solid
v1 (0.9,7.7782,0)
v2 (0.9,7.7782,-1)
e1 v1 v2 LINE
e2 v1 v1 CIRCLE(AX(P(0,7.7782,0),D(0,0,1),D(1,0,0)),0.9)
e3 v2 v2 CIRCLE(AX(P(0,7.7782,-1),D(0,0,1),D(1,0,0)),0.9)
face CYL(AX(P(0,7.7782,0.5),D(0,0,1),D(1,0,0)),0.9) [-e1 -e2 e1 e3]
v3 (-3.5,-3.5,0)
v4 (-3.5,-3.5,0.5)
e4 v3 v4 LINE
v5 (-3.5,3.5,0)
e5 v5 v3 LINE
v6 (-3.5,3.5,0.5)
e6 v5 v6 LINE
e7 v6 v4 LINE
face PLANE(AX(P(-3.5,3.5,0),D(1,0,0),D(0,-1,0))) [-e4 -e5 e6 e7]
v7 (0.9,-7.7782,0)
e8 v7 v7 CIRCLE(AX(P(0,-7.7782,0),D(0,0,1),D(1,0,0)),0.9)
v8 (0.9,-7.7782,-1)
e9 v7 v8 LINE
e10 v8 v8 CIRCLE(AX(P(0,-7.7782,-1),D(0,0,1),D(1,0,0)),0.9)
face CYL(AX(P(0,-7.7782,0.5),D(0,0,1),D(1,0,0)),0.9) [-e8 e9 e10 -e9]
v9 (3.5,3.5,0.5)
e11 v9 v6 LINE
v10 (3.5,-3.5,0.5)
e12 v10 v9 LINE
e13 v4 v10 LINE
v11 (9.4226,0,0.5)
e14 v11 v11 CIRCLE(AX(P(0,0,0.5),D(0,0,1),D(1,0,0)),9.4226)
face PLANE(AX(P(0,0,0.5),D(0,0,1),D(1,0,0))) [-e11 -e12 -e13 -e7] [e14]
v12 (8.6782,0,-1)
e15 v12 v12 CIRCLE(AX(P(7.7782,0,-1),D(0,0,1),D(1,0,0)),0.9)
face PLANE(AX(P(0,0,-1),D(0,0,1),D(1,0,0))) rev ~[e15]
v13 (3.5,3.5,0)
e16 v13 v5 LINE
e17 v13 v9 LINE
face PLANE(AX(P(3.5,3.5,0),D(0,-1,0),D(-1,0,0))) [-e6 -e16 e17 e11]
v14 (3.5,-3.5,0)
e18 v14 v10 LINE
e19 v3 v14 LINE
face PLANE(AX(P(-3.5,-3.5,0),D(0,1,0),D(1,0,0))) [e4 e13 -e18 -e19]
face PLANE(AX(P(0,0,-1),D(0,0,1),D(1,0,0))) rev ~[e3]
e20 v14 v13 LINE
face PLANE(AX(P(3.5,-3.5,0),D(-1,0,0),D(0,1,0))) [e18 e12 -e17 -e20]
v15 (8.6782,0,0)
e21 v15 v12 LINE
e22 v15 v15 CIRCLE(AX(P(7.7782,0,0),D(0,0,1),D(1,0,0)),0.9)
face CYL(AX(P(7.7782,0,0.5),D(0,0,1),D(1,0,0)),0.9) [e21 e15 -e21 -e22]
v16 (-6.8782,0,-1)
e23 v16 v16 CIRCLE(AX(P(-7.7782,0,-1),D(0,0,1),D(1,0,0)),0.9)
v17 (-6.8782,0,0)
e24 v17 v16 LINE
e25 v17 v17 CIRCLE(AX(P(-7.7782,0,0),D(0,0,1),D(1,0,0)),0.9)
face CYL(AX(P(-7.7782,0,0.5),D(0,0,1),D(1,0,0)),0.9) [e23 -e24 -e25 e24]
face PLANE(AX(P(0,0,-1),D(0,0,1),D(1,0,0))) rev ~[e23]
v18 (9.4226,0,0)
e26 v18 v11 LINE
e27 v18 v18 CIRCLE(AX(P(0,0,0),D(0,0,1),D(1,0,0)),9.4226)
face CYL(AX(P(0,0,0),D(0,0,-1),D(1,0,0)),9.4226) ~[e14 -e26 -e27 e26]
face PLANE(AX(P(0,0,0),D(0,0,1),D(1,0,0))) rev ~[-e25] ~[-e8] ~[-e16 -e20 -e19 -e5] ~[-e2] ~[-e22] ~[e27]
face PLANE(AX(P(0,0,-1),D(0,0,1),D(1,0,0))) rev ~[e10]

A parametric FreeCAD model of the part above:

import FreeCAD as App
import Part
import Sketcher
from FreeCAD import Vector
Q = App.Units.Quantity


def add_polygon(sketch, points):
    """Adds a closed chain of lines whose ends are joined by coincident constraints."""
    first, n = sketch.GeometryCount, len(points)
    for a, b in zip(points, points[1:] + points[:1]):
        sketch.addGeometry(Part.LineSegment(App.Vector(*a, 0), App.Vector(*b, 0)), False)
    for i in range(n):
        sketch.addConstraint(Sketcher.Constraint("Coincident", first + i, 2, first + (i + 1) % n, 1))

doc = App.newDocument("Part")
body = doc.addObject("PartDesign::Body", "Body")

# Sketch on XY plane
sketch1 = body.newObject("Sketcher::SketchObject", "Sketch")
sketch1.AttachmentSupport = (doc.getObject("XY_Plane"), [""])
sketch1.MapMode = "FlatFace"
sketch1.addGeometry(Part.Circle(Vector(0, 0, 0), Vector(0, 0, 1), 9.4226), False)  # 0
sketch1.addGeometry(Part.Circle(Vector(0, -7.7782, 0), Vector(0, 0, 1), 0.9), False)  # 1
sketch1.addGeometry(Part.Circle(Vector(-7.7782, 0, 0), Vector(0, 0, 1), 0.9), False)  # 2
sketch1.addGeometry(Part.Circle(Vector(7.7782, 0, 0), Vector(0, 0, 1), 0.9), False)  # 3
sketch1.addGeometry(Part.Circle(Vector(0, 7.7782, 0), Vector(0, 0, 1), 0.9), False)  # 4
add_polygon(sketch1, [(3.5, -3.5), (-3.5, -3.5), (-3.5, 3.5), (3.5, 3.5)])  # lines 5-8
sketch1.addConstraint(Sketcher.Constraint("Horizontal", 5))
sketch1.addConstraint(Sketcher.Constraint("Vertical", 6))
sketch1.addConstraint(Sketcher.Constraint("Horizontal", 7))
sketch1.addConstraint(Sketcher.Constraint("Vertical", 8))
sketch1.addConstraint(Sketcher.Constraint("Coincident", 0, 3, -1, 1))
sketch1.addConstraint(Sketcher.Constraint("Equal", 1, 2))
sketch1.addConstraint(Sketcher.Constraint("Equal", 2, 3))
sketch1.addConstraint(Sketcher.Constraint("Equal", 3, 4))
sketch1.addConstraint(Sketcher.Constraint("Symmetric", 2, 3, 3, 3, -1, 1))
sketch1.addConstraint(Sketcher.Constraint("Symmetric", 1, 3, 4, 3, -1, 1))
sketch1.addConstraint(Sketcher.Constraint("Symmetric", 5, 2, 7, 2, -1, 1))
sketch1.addConstraint(Sketcher.Constraint("PointOnObject", 1, 3, -2))
sketch1.addConstraint(Sketcher.Constraint("PointOnObject", 2, 3, -1))
sketch1.addConstraint(Sketcher.Constraint("Equal", 7, 6))
sketch1.addConstraint(Sketcher.Constraint("DistanceX", 5, 2, 5, 1, Q("7 mm")))
sketch1.addConstraint(Sketcher.Constraint("Diameter", 1, Q("1.8 mm")))
sketch1.addConstraint(Sketcher.Constraint("Diameter", 0, Q("18.8452 mm")))
sketch1.addConstraint(Sketcher.Constraint("DistanceY", 1, 3, -1, 1, Q("7.7782 mm")))
sketch1.addConstraint(Sketcher.Constraint("DistanceX", 2, 3, -1, 1, Q("7.7782 mm")))
pad1 = body.newObject("PartDesign::Pad", "Pad")
pad1.Profile = sketch1
pad1.Length = 0.5

# Sketch on XY plane
sketch2 = body.newObject("Sketcher::SketchObject", "Sketch001")
sketch2.AttachmentSupport = (doc.getObject("XY_Plane"), [""])
sketch2.MapMode = "FlatFace"
sketch2.AttachmentOffset = App.Placement(Vector(0, 0, 0.5), App.Rotation())
sketch2.addGeometry(Part.Circle(Vector(0, 7.7782, 0), Vector(0, 0, 1), 0.9), False)
sketch2.addGeometry(Part.Circle(Vector(-7.7782, 0, 0), Vector(0, 0, 1), 0.9), False)
sketch2.addGeometry(Part.Circle(Vector(0, -7.7782, 0), Vector(0, 0, 1), 0.9), False)
sketch2.addGeometry(Part.Circle(Vector(7.7782, 0, 0), Vector(0, 0, 1), 0.9), False)
sketch2.addConstraint(Sketcher.Constraint("Equal", 0, 1))
sketch2.addConstraint(Sketcher.Constraint("Equal", 1, 2))
sketch2.addConstraint(Sketcher.Constraint("Equal", 2, 3))
sketch2.addConstraint(Sketcher.Constraint("Symmetric", 0, 3, 2, 3, -1, 1))
sketch2.addConstraint(Sketcher.Constraint("Symmetric", 1, 3, 3, 3, -1, 1))
sketch2.addConstraint(Sketcher.Constraint("PointOnObject", 0, 3, -2))
sketch2.addConstraint(Sketcher.Constraint("PointOnObject", 1, 3, -1))
sketch2.addConstraint(Sketcher.Constraint("Diameter", 0, Q("1.8 mm")))
sketch2.addConstraint(Sketcher.Constraint("DistanceY", -1, 1, 0, 3, Q("7.7782 mm")))
sketch2.addConstraint(Sketcher.Constraint("DistanceX", 1, 3, -1, 1, Q("7.7782 mm")))
pad2 = body.newObject("PartDesign::Pad", "Pad001")
pad2.Profile = sketch2
pad2.Length = 1.5
pad2.Reversed = True

doc.recompute()
